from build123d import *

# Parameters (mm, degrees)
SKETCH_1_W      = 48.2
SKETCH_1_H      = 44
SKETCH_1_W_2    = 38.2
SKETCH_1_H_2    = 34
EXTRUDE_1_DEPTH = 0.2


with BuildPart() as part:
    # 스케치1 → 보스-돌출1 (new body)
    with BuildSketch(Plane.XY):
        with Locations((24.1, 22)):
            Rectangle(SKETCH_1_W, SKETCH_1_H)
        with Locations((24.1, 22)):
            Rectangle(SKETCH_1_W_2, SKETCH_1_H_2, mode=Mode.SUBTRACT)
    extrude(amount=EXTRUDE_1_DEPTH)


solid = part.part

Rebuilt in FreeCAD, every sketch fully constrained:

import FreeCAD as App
import Part
import Sketcher

V = App.Vector

doc = App.newDocument("Part")
body = doc.addObject("PartDesign::Body", "Body")

sketch1 = body.newObject("Sketcher::SketchObject", "Sketch")
sketch1.AttachmentSupport = (doc.getObject("XY_Plane"), [""])
sketch1.MapMode = "FlatFace"
sketch1.addGeometry(Part.LineSegment(V(0, 44, 0), V(0, 0, 0)), False)
sketch1.addGeometry(Part.LineSegment(V(0, 0, 0), V(48, 0, 0)), False)
sketch1.addGeometry(Part.LineSegment(V(48, 0, 0), V(48, 44, 0)), False)
sketch1.addGeometry(Part.LineSegment(V(48, 44, 0), V(0, 44, 0)), False)
sketch1.addGeometry(Part.LineSegment(V(43, 5, 0), V(5, 5, 0)), False)
sketch1.addGeometry(Part.LineSegment(V(5, 5, 0), V(5, 39, 0)), False)
sketch1.addGeometry(Part.LineSegment(V(5, 39, 0), V(43, 39, 0)), False)
sketch1.addGeometry(Part.LineSegment(V(43, 39, 0), V(43, 5, 0)), False)
sketch1.addConstraint(Sketcher.Constraint("Coincident", 0, 2, 1, 1))
sketch1.addConstraint(Sketcher.Constraint("Coincident", 1, 2, 2, 1))
sketch1.addConstraint(Sketcher.Constraint("Coincident", 2, 2, 3, 1))
sketch1.addConstraint(Sketcher.Constraint("Coincident", 3, 2, 0, 1))
sketch1.addConstraint(Sketcher.Constraint("Coincident", 4, 2, 5, 1))
sketch1.addConstraint(Sketcher.Constraint("Coincident", 5, 2, 6, 1))
sketch1.addConstraint(Sketcher.Constraint("Coincident", 6, 2, 7, 1))
sketch1.addConstraint(Sketcher.Constraint("Coincident", 7, 2, 4, 1))
sketch1.addConstraint(Sketcher.Constraint("Vertical", 0))
sketch1.addConstraint(Sketcher.Constraint("Horizontal", 1))
sketch1.addConstraint(Sketcher.Constraint("Vertical", 2))
sketch1.addConstraint(Sketcher.Constraint("Horizontal", 3))
sketch1.addConstraint(Sketcher.Constraint("Horizontal", 4))
sketch1.addConstraint(Sketcher.Constraint("Vertical", 5))
sketch1.addConstraint(Sketcher.Constraint("Horizontal", 6))
sketch1.addConstraint(Sketcher.Constraint("Vertical", 7))
sketch1.addConstraint(Sketcher.Constraint("Coincident", 0, 2, -1, 1))
sketch1.addConstraint(Sketcher.Constraint("DistanceY", 0, 2, 0, 1, 44.0))
sketch1.addConstraint(Sketcher.Constraint("DistanceY", 5, 1, 5, 2, 34.0))
sketch1.addConstraint(Sketcher.Constraint("DistanceX", 1, 1, 1, 2, 48.2))
sketch1.addConstraint(Sketcher.Constraint("DistanceX", 4, 2, 4, 1, 38.2))
sketch1.addConstraint(Sketcher.Constraint("DistanceX", -1, 1, 4, 2, 5.0))
sketch1.addConstraint(Sketcher.Constraint("DistanceY", -1, 1, 4, 2, 5.0))
pad1 = body.newObject("PartDesign::Pad", "Pad")
pad1.Profile = sketch1
pad1.Length = 0.2

doc.recompute()
